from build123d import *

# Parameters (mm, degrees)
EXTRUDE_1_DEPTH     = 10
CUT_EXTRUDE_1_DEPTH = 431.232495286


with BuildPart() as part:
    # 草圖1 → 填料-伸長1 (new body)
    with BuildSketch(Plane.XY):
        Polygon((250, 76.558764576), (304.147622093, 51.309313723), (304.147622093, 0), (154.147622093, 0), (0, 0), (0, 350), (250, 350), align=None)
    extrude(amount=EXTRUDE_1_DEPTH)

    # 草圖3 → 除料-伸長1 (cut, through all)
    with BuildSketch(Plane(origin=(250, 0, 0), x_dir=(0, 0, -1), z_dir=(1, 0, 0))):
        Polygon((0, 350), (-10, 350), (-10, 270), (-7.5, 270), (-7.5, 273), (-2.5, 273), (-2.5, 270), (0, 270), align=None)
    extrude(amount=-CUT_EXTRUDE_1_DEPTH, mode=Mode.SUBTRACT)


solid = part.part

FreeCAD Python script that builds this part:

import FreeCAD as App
import Part
import Sketcher

V = App.Vector
Q = App.Units.Quantity

doc = App.newDocument("Part")
body = doc.addObject("PartDesign::Body", "Body")

# Sketch on XY plane
sketch1 = body.newObject("Sketcher::SketchObject", "Sketch")
sketch1.AttachmentSupport = (doc.getObject("XY_Plane"), [""])
sketch1.MapMode = "FlatFace"
sketch1.addGeometry([
    Part.LineSegment(V(304.147622, 51.309314, 0), V(250, 76.558765, 0)),  # 0
    Part.LineSegment(V(250, 76.558765, 0), V(250, 350, 0)),  # 1
    Part.LineSegment(V(250, 350, 0), V(0, 350, 0)),  # 2
    Part.LineSegment(V(0, 350, 0), V(0, 0, 0)),  # 3
    Part.LineSegment(V(0, 0, 0), V(304.147622, 0, 0)),  # 4
    Part.LineSegment(V(304.147622, 0, 0), V(304.147622, 51.309314, 0)),  # 5
], False)
sketch1.addConstraint([
    Sketcher.Constraint("Coincident", 0, 2, 1, 1),
    Sketcher.Constraint("Coincident", 1, 2, 2, 1),
    Sketcher.Constraint("Coincident", 2, 2, 3, 1),
    Sketcher.Constraint("Coincident", 3, 2, 4, 1),
    Sketcher.Constraint("Coincident", 4, 2, 5, 1),
    Sketcher.Constraint("Coincident", 5, 2, 0, 1),
    Sketcher.Constraint("Vertical", 1),
    Sketcher.Constraint("Horizontal", 2),
    Sketcher.Constraint("Vertical", 3),
    Sketcher.Constraint("Horizontal", 4),
    Sketcher.Constraint("Vertical", 5),
    Sketcher.Constraint("Coincident", 3, 2, -1, 1),
    Sketcher.Constraint("DistanceX", 2, 2, 2, 1, 250.0),
    Sketcher.Constraint("DistanceY", 3, 2, 3, 1, 350.0),
    Sketcher.Constraint("Angle", 0, Q("155 deg")),
    Sketcher.Constraint("Distance", 0, 59.745291),
    Sketcher.Constraint("DistanceY", 1, 1, 1, 2, 273.441235),
])
pad1 = body.newObject("PartDesign::Pad", "Pad")
pad1.Profile = sketch1
pad1.Length = 10

# Sketch on YZ plane
sketch2 = body.newObject("Sketcher::SketchObject", "Sketch001")
sketch2.AttachmentSupport = (doc.getObject("YZ_Plane"), [""])
sketch2.MapMode = "FlatFace"
sketch2.AttachmentOffset = App.Placement(V(0, 0, 250), App.Rotation())
sketch2.addGeometry([
    Part.LineSegment(V(350, 0, 0), V(350, 10, 0)),  # 0
    Part.LineSegment(V(350, 10, 0), V(270, 10, 0)),  # 1
    Part.LineSegment(V(270, 10, 0), V(270, 7.5, 0)),  # 2
    Part.LineSegment(V(270, 7.5, 0), V(273, 7.5, 0)),  # 3
    Part.LineSegment(V(273, 7.5, 0), V(273, 2.5, 0)),  # 4
    Part.LineSegment(V(273, 2.5, 0), V(270, 2.5, 0)),  # 5
    Part.LineSegment(V(270, 2.5, 0), V(270, 0, 0)),  # 6
    Part.LineSegment(V(270, 0, 0), V(350, 0, 0)),  # 7
], False)
sketch2.addConstraint([
    Sketcher.Constraint("Coincident", 0, 2, 1, 1),
    Sketcher.Constraint("Coincident", 1, 2, 2, 1),
    Sketcher.Constraint("Coincident", 2, 2, 3, 1),
    Sketcher.Constraint("Coincident", 3, 2, 4, 1),
    Sketcher.Constraint("Coincident", 4, 2, 5, 1),
    Sketcher.Constraint("Coincident", 5, 2, 6, 1),
    Sketcher.Constraint("Coincident", 6, 2, 7, 1),
    Sketcher.Constraint("Coincident", 7, 2, 0, 1),
    Sketcher.Constraint("Vertical", 0),
    Sketcher.Constraint("Horizontal", 1),
    Sketcher.Constraint("Vertical", 2),
    Sketcher.Constraint("Horizontal", 3),
    Sketcher.Constraint("Vertical", 4),
    Sketcher.Constraint("Horizontal", 5),
    Sketcher.Constraint("Vertical", 6),
    Sketcher.Constraint("Horizontal", 7),
    Sketcher.Constraint("PointOnObject", 6, 2, -1),
    Sketcher.Constraint("Vertical", 2, 2, 5, 2),
    Sketcher.Constraint("Equal", 2, 6),
    Sketcher.Constraint("DistanceX", 1, 2, 1, 1, 80.0),
    Sketcher.Constraint("DistanceX", 3, 1, 3, 2, 3.0),
    Sketcher.Constraint("DistanceY", 0, 1, 0, 2, 10.0),
    Sketcher.Constraint("DistanceY", 4, 2, 4, 1, 5.0),
    Sketcher.Constraint("DistanceX", -1, 1, 0, 2, 350.0),
])
pocket1 = body.newObject("PartDesign::Pocket", "Pocket")
pocket1.Profile = sketch2
pocket1.Type = "ThroughAll"

doc.recompute()
